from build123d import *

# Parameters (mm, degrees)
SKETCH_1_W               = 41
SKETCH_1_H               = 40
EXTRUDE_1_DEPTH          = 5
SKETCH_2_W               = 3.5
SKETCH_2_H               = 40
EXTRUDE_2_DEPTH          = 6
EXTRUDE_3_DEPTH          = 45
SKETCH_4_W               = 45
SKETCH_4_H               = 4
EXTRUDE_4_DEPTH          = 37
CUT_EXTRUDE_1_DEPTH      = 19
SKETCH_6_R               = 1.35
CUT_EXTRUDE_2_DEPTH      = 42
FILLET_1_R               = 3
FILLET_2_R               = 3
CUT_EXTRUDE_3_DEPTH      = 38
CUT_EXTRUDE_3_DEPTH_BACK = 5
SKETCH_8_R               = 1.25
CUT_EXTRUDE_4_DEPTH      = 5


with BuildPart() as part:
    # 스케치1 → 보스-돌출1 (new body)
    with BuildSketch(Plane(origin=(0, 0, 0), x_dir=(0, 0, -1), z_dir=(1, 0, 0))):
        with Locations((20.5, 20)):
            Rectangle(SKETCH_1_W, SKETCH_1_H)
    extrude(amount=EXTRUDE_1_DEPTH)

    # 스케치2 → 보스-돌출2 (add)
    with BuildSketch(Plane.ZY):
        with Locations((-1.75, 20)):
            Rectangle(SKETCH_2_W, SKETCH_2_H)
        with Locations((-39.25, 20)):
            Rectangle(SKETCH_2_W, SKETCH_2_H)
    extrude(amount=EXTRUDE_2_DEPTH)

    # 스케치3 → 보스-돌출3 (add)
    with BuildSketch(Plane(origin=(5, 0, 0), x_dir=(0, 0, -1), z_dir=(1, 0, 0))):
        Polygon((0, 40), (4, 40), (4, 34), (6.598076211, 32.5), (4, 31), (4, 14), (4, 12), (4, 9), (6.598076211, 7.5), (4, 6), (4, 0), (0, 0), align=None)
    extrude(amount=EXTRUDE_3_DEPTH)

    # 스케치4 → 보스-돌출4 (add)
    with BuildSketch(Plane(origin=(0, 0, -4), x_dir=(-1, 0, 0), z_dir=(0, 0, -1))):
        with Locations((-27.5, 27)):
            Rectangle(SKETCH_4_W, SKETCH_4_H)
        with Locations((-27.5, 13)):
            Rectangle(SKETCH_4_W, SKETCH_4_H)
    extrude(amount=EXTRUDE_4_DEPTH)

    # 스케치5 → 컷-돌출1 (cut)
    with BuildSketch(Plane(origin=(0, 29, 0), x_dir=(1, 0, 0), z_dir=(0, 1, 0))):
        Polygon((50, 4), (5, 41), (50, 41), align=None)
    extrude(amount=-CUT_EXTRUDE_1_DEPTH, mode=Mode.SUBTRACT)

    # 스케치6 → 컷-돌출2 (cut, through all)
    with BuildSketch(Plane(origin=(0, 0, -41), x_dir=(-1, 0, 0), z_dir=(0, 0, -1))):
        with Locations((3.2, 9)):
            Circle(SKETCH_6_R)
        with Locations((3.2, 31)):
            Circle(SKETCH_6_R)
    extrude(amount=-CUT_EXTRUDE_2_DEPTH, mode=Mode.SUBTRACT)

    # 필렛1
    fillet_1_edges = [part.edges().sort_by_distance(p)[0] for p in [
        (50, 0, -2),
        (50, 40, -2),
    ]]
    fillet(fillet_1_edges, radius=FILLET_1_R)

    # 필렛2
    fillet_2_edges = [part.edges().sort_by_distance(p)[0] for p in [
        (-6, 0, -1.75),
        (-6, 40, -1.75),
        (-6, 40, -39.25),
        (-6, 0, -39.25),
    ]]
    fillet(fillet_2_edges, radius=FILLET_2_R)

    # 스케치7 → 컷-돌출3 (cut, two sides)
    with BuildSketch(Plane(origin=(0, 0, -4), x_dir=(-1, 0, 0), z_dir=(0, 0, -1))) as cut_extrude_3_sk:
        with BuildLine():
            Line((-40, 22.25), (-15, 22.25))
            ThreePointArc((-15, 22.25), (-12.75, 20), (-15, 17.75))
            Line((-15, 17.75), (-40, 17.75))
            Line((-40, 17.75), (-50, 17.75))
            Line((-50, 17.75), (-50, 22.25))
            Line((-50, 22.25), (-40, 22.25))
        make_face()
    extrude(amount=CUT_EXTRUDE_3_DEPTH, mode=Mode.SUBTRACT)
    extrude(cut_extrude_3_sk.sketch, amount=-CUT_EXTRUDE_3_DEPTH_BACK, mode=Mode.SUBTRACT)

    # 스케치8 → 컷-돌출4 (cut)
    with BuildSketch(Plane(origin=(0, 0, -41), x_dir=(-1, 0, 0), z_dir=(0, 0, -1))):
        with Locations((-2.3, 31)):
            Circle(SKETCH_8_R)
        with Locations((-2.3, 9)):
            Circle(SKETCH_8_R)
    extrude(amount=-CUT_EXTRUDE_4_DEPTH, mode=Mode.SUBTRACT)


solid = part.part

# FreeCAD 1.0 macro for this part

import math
import FreeCAD as App
import Part
import Sketcher
from FreeCAD import Vector
Q = App.Units.Quantity


def edges_at(feature, points):
    """Names of the edges that pass closest to the given points."""
    edges = feature.Shape.Edges
    near = lambda p: min(range(len(edges)), key=lambda i: edges[i].distToShape(Part.Vertex(*p))[0])
    return sorted({f"Edge{near(p) + 1}" for p in points})

doc = App.newDocument("Part")
params = doc.addObject("Spreadsheet::Sheet", "Params")
for row, (alias, value) in enumerate([
    ("sketch1_width", "40 mm"),
    ("sketch1_height", "41 mm"),
    ("pad1_length", "5 mm"),
    ("sketch2_width", "40 mm"),
    ("sketch2_height", "3.5 mm"),
    ("pad2_length", "6 mm"),
    ("sketch3_width", "40 mm"),
    ("sketch3_width2", "6 mm"),
    ("sketch3_width3", "22 mm"),
    ("sketch3_height", "4 mm"),
    ("pad3_length", "45 mm"),
    ("sketch4_width", "45 mm"),
    ("sketch4_height", "4 mm"),
    ("pad4_length", "37 mm"),
    ("sketch5_width", "45 mm"),
    ("sketch5_height", "37 mm"),
    ("pocket1_length", "19 mm"),
    ("sketch6_diameter", "2.7 mm"),
    ("fillet_radius", "3 mm"),
    ("fillet2_radius", "3 mm"),
    ("sketch7_width", "35 mm"),
    ("sketch7_radius", "2.25 mm"),
    ("sketch8_diameter", "2.5 mm"),
    ("pocket4_length", "5 mm"),
], start=1):
    params.set(f"A{row}", alias)
    params.set(f"B{row}", "=" + value)
    params.setAlias(f"B{row}", alias)

body = doc.addObject("PartDesign::Body", "Body")

# Sketch on YZ plane
sketch1 = doc.addObject("Sketcher::SketchObject", "Sketch")
body.addObject(sketch1)
sketch1.AttachmentSupport = (doc.YZ_Plane, [""])
sketch1.MapMode = "FlatFace"
sketch1.addGeometry(Part.LineSegment(Vector(40, 0, 0), Vector(0, 0, 0)), False)
sketch1.addGeometry(Part.LineSegment(Vector(0, 0, 0), Vector(0, -41, 0)), False)
sketch1.addGeometry(Part.LineSegment(Vector(0, -41, 0), Vector(40, -41, 0)), False)
sketch1.addGeometry(Part.LineSegment(Vector(40, -41, 0), Vector(40, 0, 0)), False)
sketch1.addConstraint(Sketcher.Constraint("Coincident", 0, 2, 1, 1))
sketch1.addConstraint(Sketcher.Constraint("Coincident", 1, 2, 2, 1))
sketch1.addConstraint(Sketcher.Constraint("Coincident", 2, 2, 3, 1))
sketch1.addConstraint(Sketcher.Constraint("Coincident", 3, 2, 0, 1))
sketch1.addConstraint(Sketcher.Constraint("Horizontal", 0))
sketch1.addConstraint(Sketcher.Constraint("Vertical", 1))
sketch1.addConstraint(Sketcher.Constraint("Horizontal", 2))
sketch1.addConstraint(Sketcher.Constraint("Vertical", 3))
sketch1.addConstraint(Sketcher.Constraint("Coincident", 0, 2, -1, 1))
sketch1.addConstraint(Sketcher.Constraint("DistanceX", 0, 2, 0, 1, 40.0))
sketch1.addConstraint(Sketcher.Constraint("DistanceY", 1, 2, 1, 1, 41.0))
sketch1.setExpression("Constraints[9]", "Params.sketch1_width")
sketch1.setExpression("Constraints[10]", "Params.sketch1_height")
pad1 = doc.addObject("PartDesign::Pad", "Pad")
body.addObject(pad1)
pad1.Profile = sketch1
pad1.setExpression("Length", "Params.pad1_length")

# Sketch on YZ plane
sketch2 = doc.addObject("Sketcher::SketchObject", "Sketch001")
body.addObject(sketch2)
sketch2.AttachmentSupport = (doc.YZ_Plane, [""])
sketch2.MapMode = "FlatFace"
sketch2.addGeometry(Part.LineSegment(Vector(40, -3.5, 0), Vector(0, -3.5, 0)), False)
sketch2.addGeometry(Part.LineSegment(Vector(0, -3.5, 0), Vector(0, 0, 0)), False)
sketch2.addGeometry(Part.LineSegment(Vector(0, 0, 0), Vector(40, 0, 0)), False)
sketch2.addGeometry(Part.LineSegment(Vector(40, 0, 0), Vector(40, -3.5, 0)), False)
sketch2.addGeometry(Part.LineSegment(Vector(40, -41, 0), Vector(0, -41, 0)), False)
sketch2.addGeometry(Part.LineSegment(Vector(0, -41, 0), Vector(0, -37.5, 0)), False)
sketch2.addGeometry(Part.LineSegment(Vector(0, -37.5, 0), Vector(40, -37.5, 0)), False)
sketch2.addGeometry(Part.LineSegment(Vector(40, -37.5, 0), Vector(40, -41, 0)), False)
sketch2.addConstraint(Sketcher.Constraint("Coincident", 0, 2, 1, 1))
sketch2.addConstraint(Sketcher.Constraint("Coincident", 1, 2, 2, 1))
sketch2.addConstraint(Sketcher.Constraint("Coincident", 2, 2, 3, 1))
sketch2.addConstraint(Sketcher.Constraint("Coincident", 3, 2, 0, 1))
sketch2.addConstraint(Sketcher.Constraint("Coincident", 4, 2, 5, 1))
sketch2.addConstraint(Sketcher.Constraint("Coincident", 5, 2, 6, 1))
sketch2.addConstraint(Sketcher.Constraint("Coincident", 6, 2, 7, 1))
sketch2.addConstraint(Sketcher.Constraint("Coincident", 7, 2, 4, 1))
sketch2.addConstraint(Sketcher.Constraint("Horizontal", 0))
sketch2.addConstraint(Sketcher.Constraint("Vertical", 1))
sketch2.addConstraint(Sketcher.Constraint("Horizontal", 2))
sketch2.addConstraint(Sketcher.Constraint("Vertical", 3))
sketch2.addConstraint(Sketcher.Constraint("Horizontal", 4))
sketch2.addConstraint(Sketcher.Constraint("Vertical", 5))
sketch2.addConstraint(Sketcher.Constraint("Horizontal", 6))
sketch2.addConstraint(Sketcher.Constraint("Vertical", 7))
sketch2.addConstraint(Sketcher.Constraint("Coincident", 1, 2, -1, 1))
sketch2.addConstraint(Sketcher.Constraint("PointOnObject", 4, 2, -2))
sketch2.addConstraint(Sketcher.Constraint("Vertical", 3, 2, 6, 2))
sketch2.addConstraint(Sketcher.Constraint("Equal", 3, 5))
sketch2.addConstraint(Sketcher.Constraint("DistanceX", 0, 2, 0, 1, 40.0))
sketch2.addConstraint(Sketcher.Constraint("DistanceY", 1, 1, 1, 2, 3.5))
sketch2.addConstraint(Sketcher.Constraint("DistanceY", 4, 2, -1, 1, 41.0))
sketch2.setExpression("Constraints[20]", "Params.sketch2_width")
sketch2.setExpression("Constraints[21]", "Params.sketch2_height")
pad2 = doc.addObject("PartDesign::Pad", "Pad001")
body.addObject(pad2)
pad2.Profile = sketch2
pad2.setExpression("Length", "Params.pad2_length")
pad2.Reversed = True

# Sketch on YZ plane
sketch3 = doc.addObject("Sketcher::SketchObject", "Sketch002")
body.addObject(sketch3)
sketch3.AttachmentSupport = (doc.YZ_Plane, [""])
sketch3.MapMode = "FlatFace"
sketch3.AttachmentOffset = App.Placement(Vector(0, 0, 5), App.Rotation())
sketch3.addGeometry(Part.LineSegment(Vector(40, -4, 0), Vector(40, 0, 0)), False)
sketch3.addGeometry(Part.LineSegment(Vector(40, 0, 0), Vector(0, 0, 0)), False)
sketch3.addGeometry(Part.LineSegment(Vector(0, 0, 0), Vector(0, -4, 0)), False)
sketch3.addGeometry(Part.LineSegment(Vector(0, -4, 0), Vector(6, -4, 0)), False)
sketch3.addGeometry(Part.LineSegment(Vector(6, -4, 0), Vector(7.5, -6.6, 0)), False)
sketch3.addGeometry(Part.LineSegment(Vector(7.5, -6.6, 0), Vector(9, -4, 0)), False)
sketch3.addGeometry(Part.LineSegment(Vector(9, -4, 0), Vector(31, -4, 0)), False)
sketch3.addGeometry(Part.LineSegment(Vector(31, -4, 0), Vector(32.5, -6.6, 0)), False)
sketch3.addGeometry(Part.LineSegment(Vector(32.5, -6.6, 0), Vector(34, -4, 0)), False)
sketch3.addGeometry(Part.LineSegment(Vector(34, -4, 0), Vector(40, -4, 0)), False)
sketch3.addConstraint(Sketcher.Constraint("Coincident", 0, 2, 1, 1))
sketch3.addConstraint(Sketcher.Constraint("Coincident", 1, 2, 2, 1))
sketch3.addConstraint(Sketcher.Constraint("Coincident", 2, 2, 3, 1))
sketch3.addConstraint(Sketcher.Constraint("Coincident", 3, 2, 4, 1))
sketch3.addConstraint(Sketcher.Constraint("Coincident", 4, 2, 5, 1))
sketch3.addConstraint(Sketcher.Constraint("Coincident", 5, 2, 6, 1))
sketch3.addConstraint(Sketcher.Constraint("Coincident", 6, 2, 7, 1))
sketch3.addConstraint(Sketcher.Constraint("Coincident", 7, 2, 8, 1))
sketch3.addConstraint(Sketcher.Constraint("Coincident", 8, 2, 9, 1))
sketch3.addConstraint(Sketcher.Constraint("Coincident", 9, 2, 0, 1))
sketch3.addConstraint(Sketcher.Constraint("Vertical", 0))
sketch3.addConstraint(Sketcher.Constraint("Horizontal", 1))
sketch3.addConstraint(Sketcher.Constraint("Vertical", 2))
sketch3.addConstraint(Sketcher.Constraint("Horizontal", 3))
sketch3.addConstraint(Sketcher.Constraint("Horizontal", 6))
sketch3.addConstraint(Sketcher.Constraint("Horizontal", 9))
sketch3.addConstraint(Sketcher.Constraint("Coincident", 1, 2, -1, 1))
sketch3.addConstraint(Sketcher.Constraint("Parallel", 4, 7))
sketch3.addConstraint(Sketcher.Constraint("Parallel", 5, 8))
sketch3.addConstraint(Sketcher.Constraint("Horizontal", 3, 2, 5, 2))
sketch3.addConstraint(Sketcher.Constraint("Horizontal", 4, 2, 7, 2))
sketch3.addConstraint(Sketcher.Constraint("Horizontal", 6, 2, 8, 2))
sketch3.addConstraint(Sketcher.Constraint("Equal", 3, 9))
sketch3.addConstraint(Sketcher.Constraint("Equal", 4, 5))
sketch3.addConstraint(Sketcher.Constraint("DistanceX", 1, 2, 1, 1, 40.0))
sketch3.addConstraint(Sketcher.Constraint("DistanceX", 3, 1, 3, 2, 6.0))
sketch3.addConstraint(Sketcher.Constraint("DistanceX", 6, 1, 6, 2, 22.0))
sketch3.addConstraint(Sketcher.Constraint("DistanceY", 0, 1, 0, 2, 4.0))
sketch3.addConstraint(Sketcher.Constraint("Angle", 4, Q("-60 deg")))
sketch3.setExpression("Constraints[24]", "Params.sketch3_width")
sketch3.setExpression("Constraints[25]", "Params.sketch3_width2")
sketch3.setExpression("Constraints[26]", "Params.sketch3_width3")
sketch3.setExpression("Constraints[27]", "Params.sketch3_height")
pad3 = doc.addObject("PartDesign::Pad", "Pad002")
body.addObject(pad3)
pad3.Profile = sketch3
pad3.setExpression("Length", "Params.pad3_length")

# Sketch on XY plane
sketch4 = doc.addObject("Sketcher::SketchObject", "Sketch003")
body.addObject(sketch4)
sketch4.AttachmentSupport = (doc.XY_Plane, [""])
sketch4.MapMode = "FlatFace"
sketch4.AttachmentOffset = App.Placement(Vector(0, 0, -4), App.Rotation())
sketch4.addGeometry(Part.LineSegment(Vector(50, 29, 0), Vector(50, 25, 0)), False)
sketch4.addGeometry(Part.LineSegment(Vector(50, 25, 0), Vector(5, 25, 0)), False)
sketch4.addGeometry(Part.LineSegment(Vector(5, 25, 0), Vector(5, 29, 0)), False)
sketch4.addGeometry(Part.LineSegment(Vector(5, 29, 0), Vector(50, 29, 0)), False)
sketch4.addGeometry(Part.LineSegment(Vector(50, 15, 0), Vector(50, 11, 0)), False)
sketch4.addGeometry(Part.LineSegment(Vector(50, 11, 0), Vector(5, 11, 0)), False)
sketch4.addGeometry(Part.LineSegment(Vector(5, 11, 0), Vector(5, 15, 0)), False)
sketch4.addGeometry(Part.LineSegment(Vector(5, 15, 0), Vector(50, 15, 0)), False)
sketch4.addConstraint(Sketcher.Constraint("Coincident", 0, 2, 1, 1))
sketch4.addConstraint(Sketcher.Constraint("Coincident", 1, 2, 2, 1))
sketch4.addConstraint(Sketcher.Constraint("Coincident", 2, 2, 3, 1))
sketch4.addConstraint(Sketcher.Constraint("Coincident", 3, 2, 0, 1))
sketch4.addConstraint(Sketcher.Constraint("Coincident", 4, 2, 5, 1))
sketch4.addConstraint(Sketcher.Constraint("Coincident", 5, 2, 6, 1))
sketch4.addConstraint(Sketcher.Constraint("Coincident", 6, 2, 7, 1))
sketch4.addConstraint(Sketcher.Constraint("Coincident", 7, 2, 4, 1))
sketch4.addConstraint(Sketcher.Constraint("Vertical", 0))
sketch4.addConstraint(Sketcher.Constraint("Horizontal", 1))
sketch4.addConstraint(Sketcher.Constraint("Vertical", 2))
sketch4.addConstraint(Sketcher.Constraint("Horizontal", 3))
sketch4.addConstraint(Sketcher.Constraint("Vertical", 4))
sketch4.addConstraint(Sketcher.Constraint("Horizontal", 5))
sketch4.addConstraint(Sketcher.Constraint("Vertical", 6))
sketch4.addConstraint(Sketcher.Constraint("Horizontal", 7))
sketch4.addConstraint(Sketcher.Constraint("Vertical", 3, 2, 4, 2))
sketch4.addConstraint(Sketcher.Constraint("Vertical", 2, 2, 5, 2))
sketch4.addConstraint(Sketcher.Constraint("Equal", 2, 4))
sketch4.addConstraint(Sketcher.Constraint("DistanceX", 1, 2, 1, 1, 45.0))
sketch4.addConstraint(Sketcher.Constraint("DistanceY", 0, 2, 0, 1, 4.0))
sketch4.addConstraint(Sketcher.Constraint("DistanceX", -1, 1, 0, 2, 50.0))
sketch4.addConstraint(Sketcher.Constraint("DistanceY", -1, 1, 0, 2, 25.0))
sketch4.addConstraint(Sketcher.Constraint("DistanceY", -1, 1, 4, 2, 11.0))
sketch4.setExpression("Constraints[19]", "Params.sketch4_width")
sketch4.setExpression("Constraints[20]", "Params.sketch4_height")
pad4 = doc.addObject("PartDesign::Pad", "Pad003")
body.addObject(pad4)
pad4.Profile = sketch4
pad4.setExpression("Length", "Params.pad4_length")
pad4.Reversed = True

# Sketch on XZ plane
sketch5 = doc.addObject("Sketcher::SketchObject", "Sketch004")
body.addObject(sketch5)
sketch5.AttachmentSupport = (doc.XZ_Plane, [""])
sketch5.MapMode = "FlatFace"
sketch5.AttachmentOffset = App.Placement(Vector(0, 0, -29), App.Rotation())
sketch5.addGeometry(Part.LineSegment(Vector(5, -41, 0), Vector(50, -4, 0)), False)
sketch5.addGeometry(Part.LineSegment(Vector(50, -4, 0), Vector(50, -41, 0)), False)
sketch5.addGeometry(Part.LineSegment(Vector(50, -41, 0), Vector(5, -41, 0)), False)
sketch5.addConstraint(Sketcher.Constraint("Coincident", 0, 2, 1, 1))
sketch5.addConstraint(Sketcher.Constraint("Coincident", 1, 2, 2, 1))
sketch5.addConstraint(Sketcher.Constraint("Coincident", 2, 2, 0, 1))
sketch5.addConstraint(Sketcher.Constraint("Vertical", 1))
sketch5.addConstraint(Sketcher.Constraint("Horizontal", 2))
sketch5.addConstraint(Sketcher.Constraint("DistanceX", 2, 2, 2, 1, 45.0))
sketch5.addConstraint(Sketcher.Constraint("DistanceY", 1, 2, 1, 1, 37.0))
sketch5.addConstraint(Sketcher.Constraint("DistanceX", -1, 1, 0, 2, 50.0))
sketch5.addConstraint(Sketcher.Constraint("DistanceY", 0, 2, -1, 1, 4.0))
sketch5.setExpression("Constraints[5]", "Params.sketch5_width")
sketch5.setExpression("Constraints[6]", "Params.sketch5_height")
pocket1 = doc.addObject("PartDesign::Pocket", "Pocket")
body.addObject(pocket1)
pocket1.Profile = sketch5
pocket1.setExpression("Length", "Params.pocket1_length")
pocket1.Reversed = True

# Sketch on XY plane
sketch6 = doc.addObject("Sketcher::SketchObject", "Sketch005")
body.addObject(sketch6)
sketch6.AttachmentSupport = (doc.XY_Plane, [""])
sketch6.MapMode = "FlatFace"
sketch6.AttachmentOffset = App.Placement(Vector(0, 0, -41), App.Rotation())
sketch6.addGeometry(Part.Circle(Vector(-3.2, 9, 0), Vector(0, 0, 1), 1.4), False)
sketch6.addGeometry(Part.Circle(Vector(-3.2, 31, 0), Vector(0, 0, 1), 1.4), False)
sketch6.addConstraint(Sketcher.Constraint("Equal", 0, 1))
sketch6.addConstraint(Sketcher.Constraint("Vertical", 0, 3, 1, 3))
sketch6.addConstraint(Sketcher.Constraint("Diameter", 0, 2.7))
sketch6.addConstraint(Sketcher.Constraint("DistanceY", -1, 1, 0, 3, 9.0))
sketch6.addConstraint(Sketcher.Constraint("DistanceY", -1, 1, 1, 3, 31.0))
sketch6.addConstraint(Sketcher.Constraint("DistanceX", 0, 3, -1, 1, 3.2))
sketch6.setExpression("Constraints[2]", "Params.sketch6_diameter")
pocket2 = doc.addObject("PartDesign::Pocket", "Pocket001")
body.addObject(pocket2)
pocket2.Profile = sketch6
pocket2.Type = "ThroughAll"
pocket2.Reversed = True
doc.recompute()

fillet = doc.addObject("PartDesign::Fillet", "Fillet")
body.addObject(fillet)
fillet.Base = (pocket2, edges_at(pocket2, [(50, 0, -2), (50, 40, -2)]))
fillet.setExpression("Radius", "Params.fillet_radius")
doc.recompute()

fillet2 = doc.addObject("PartDesign::Fillet", "Fillet001")
body.addObject(fillet2)
fillet2.Base = (fillet, edges_at(fillet, [
    (-6, 0, -1.75),
    (-6, 40, -1.75),
    (-6, 40, -39.25),
    (-6, 0, -39.25),
]))
fillet2.setExpression("Radius", "Params.fillet2_radius")

# Sketch on XY plane
sketch7 = doc.addObject("Sketcher::SketchObject", "Sketch006")
body.addObject(sketch7)
sketch7.AttachmentSupport = (doc.XY_Plane, [""])
sketch7.MapMode = "FlatFace"
sketch7.AttachmentOffset = App.Placement(Vector(0, 0, -4), App.Rotation())
sketch7.addGeometry(Part.ArcOfCircle(Part.Circle(Vector(15, 20, 0), Vector(0, 0, 1), 2.2), math.radians(90), math.radians(270)), False)
sketch7.addGeometry(Part.LineSegment(Vector(15, 22.2, 0), Vector(50, 22.2, 0)), False)
sketch7.addGeometry(Part.LineSegment(Vector(50, 22.2, 0), Vector(50, 17.8, 0)), False)
sketch7.addGeometry(Part.LineSegment(Vector(50, 17.8, 0), Vector(15, 17.8, 0)), False)
sketch7.addConstraint(Sketcher.Constraint("Tangent", 0, 1, 1, 1))
sketch7.addConstraint(Sketcher.Constraint("Coincident", 1, 2, 2, 1))
sketch7.addConstraint(Sketcher.Constraint("Coincident", 2, 2, 3, 1))
sketch7.addConstraint(Sketcher.Constraint("Tangent", 3, 2, 0, 2))
sketch7.addConstraint(Sketcher.Constraint("Horizontal", 1))
sketch7.addConstraint(Sketcher.Constraint("Vertical", 2))
sketch7.addConstraint(Sketcher.Constraint("Horizontal", 3))
sketch7.addConstraint(Sketcher.Constraint("DistanceX", 1, 1, 1, 2, 35.0))
sketch7.addConstraint(Sketcher.Constraint("Radius", 0, 2.25))
sketch7.addConstraint(Sketcher.Constraint("DistanceX", -1, 1, 0, 3, 15.0))
sketch7.addConstraint(Sketcher.Constraint("DistanceY", -1, 1, 0, 3, 20.0))
sketch7.setExpression("Constraints[7]", "Params.sketch7_width")
sketch7.setExpression("Constraints[8]", "Params.sketch7_radius")
pocket3 = doc.addObject("PartDesign::Pocket", "Pocket002")
body.addObject(pocket3)
pocket3.Profile = sketch7
pocket3.Type = "ThroughAll"
pocket3.Midplane = True

# Sketch on XY plane
sketch8 = doc.addObject("Sketcher::SketchObject", "Sketch007")
body.addObject(sketch8)
sketch8.AttachmentSupport = (doc.XY_Plane, [""])
sketch8.MapMode = "FlatFace"
sketch8.AttachmentOffset = App.Placement(Vector(0, 0, -41), App.Rotation())
sketch8.addGeometry(Part.Circle(Vector(2.3, 31, 0), Vector(0, 0, 1), 1.2), False)
sketch8.addGeometry(Part.Circle(Vector(2.3, 9, 0), Vector(0, 0, 1), 1.2), False)
sketch8.addConstraint(Sketcher.Constraint("Equal", 0, 1))
sketch8.addConstraint(Sketcher.Constraint("Vertical", 0, 3, 1, 3))
sketch8.addConstraint(Sketcher.Constraint("Diameter", 0, 2.5))
sketch8.addConstraint(Sketcher.Constraint("DistanceY", -1, 1, 0, 3, 31.0))
sketch8.addConstraint(Sketcher.Constraint("DistanceY", -1, 1, 1, 3, 9.0))
sketch8.addConstraint(Sketcher.Constraint("DistanceX", -1, 1, 0, 3, 2.3))
sketch8.setExpression("Constraints[2]", "Params.sketch8_diameter")
pocket4 = doc.addObject("PartDesign::Pocket", "Pocket003")
body.addObject(pocket4)
pocket4.Profile = sketch8
pocket4.setExpression("Length", "Params.pocket4_length")
pocket4.Reversed = True

doc.recompute()
